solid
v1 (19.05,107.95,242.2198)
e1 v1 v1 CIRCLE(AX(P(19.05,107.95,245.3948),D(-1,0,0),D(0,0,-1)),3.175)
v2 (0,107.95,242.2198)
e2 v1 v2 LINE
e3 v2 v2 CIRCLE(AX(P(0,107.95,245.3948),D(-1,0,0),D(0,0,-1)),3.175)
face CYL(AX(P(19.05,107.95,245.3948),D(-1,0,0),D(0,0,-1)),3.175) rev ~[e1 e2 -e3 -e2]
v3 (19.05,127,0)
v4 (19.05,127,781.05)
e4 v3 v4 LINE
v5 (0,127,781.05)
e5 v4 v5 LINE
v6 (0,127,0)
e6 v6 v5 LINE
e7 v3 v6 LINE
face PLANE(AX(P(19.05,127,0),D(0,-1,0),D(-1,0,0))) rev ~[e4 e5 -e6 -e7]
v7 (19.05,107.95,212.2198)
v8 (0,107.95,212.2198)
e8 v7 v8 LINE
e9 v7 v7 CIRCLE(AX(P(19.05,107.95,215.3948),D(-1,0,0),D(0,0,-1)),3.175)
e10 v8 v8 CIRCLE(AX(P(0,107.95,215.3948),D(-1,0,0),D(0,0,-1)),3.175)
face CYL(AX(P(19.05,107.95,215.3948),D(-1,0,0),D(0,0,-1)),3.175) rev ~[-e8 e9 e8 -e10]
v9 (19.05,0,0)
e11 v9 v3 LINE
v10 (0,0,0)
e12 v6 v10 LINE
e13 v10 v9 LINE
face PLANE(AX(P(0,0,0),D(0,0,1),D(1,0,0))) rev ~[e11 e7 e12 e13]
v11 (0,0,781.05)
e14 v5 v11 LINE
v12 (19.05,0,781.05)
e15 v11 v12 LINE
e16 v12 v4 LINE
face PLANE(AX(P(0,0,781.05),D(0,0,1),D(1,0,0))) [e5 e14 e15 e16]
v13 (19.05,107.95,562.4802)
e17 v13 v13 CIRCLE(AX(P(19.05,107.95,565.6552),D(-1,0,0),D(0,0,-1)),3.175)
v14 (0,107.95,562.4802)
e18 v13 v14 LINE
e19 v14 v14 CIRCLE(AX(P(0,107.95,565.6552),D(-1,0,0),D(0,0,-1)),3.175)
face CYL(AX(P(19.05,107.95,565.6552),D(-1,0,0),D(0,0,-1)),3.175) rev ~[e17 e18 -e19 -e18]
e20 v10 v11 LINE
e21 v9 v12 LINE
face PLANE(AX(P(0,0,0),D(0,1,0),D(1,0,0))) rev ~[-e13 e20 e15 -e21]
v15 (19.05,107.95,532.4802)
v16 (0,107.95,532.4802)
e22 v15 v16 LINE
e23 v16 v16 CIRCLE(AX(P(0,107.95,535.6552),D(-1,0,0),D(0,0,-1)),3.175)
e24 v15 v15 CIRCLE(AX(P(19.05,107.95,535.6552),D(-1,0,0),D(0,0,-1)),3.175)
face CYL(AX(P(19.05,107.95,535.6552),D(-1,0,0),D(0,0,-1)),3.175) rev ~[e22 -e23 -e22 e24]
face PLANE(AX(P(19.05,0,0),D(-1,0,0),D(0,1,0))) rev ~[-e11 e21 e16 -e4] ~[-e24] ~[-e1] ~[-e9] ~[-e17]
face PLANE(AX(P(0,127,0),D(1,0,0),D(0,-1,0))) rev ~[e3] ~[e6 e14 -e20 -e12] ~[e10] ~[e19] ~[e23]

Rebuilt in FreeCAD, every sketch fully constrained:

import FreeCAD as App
import Part
import Sketcher
Q = App.Units.Quantity


def add_polygon(sketch, points):
    """Adds a closed chain of lines whose ends are joined by coincident constraints."""
    first, n = sketch.GeometryCount, len(points)
    for a, b in zip(points, points[1:] + points[:1]):
        sketch.addGeometry(Part.LineSegment(App.Vector(*a, 0), App.Vector(*b, 0)), False)
    for i in range(n):
        sketch.addConstraint(Sketcher.Constraint("Coincident", first + i, 2, first + (i + 1) % n, 1))

doc = App.newDocument("Part")
body = doc.addObject("PartDesign::Body", "Body")

sketch1 = doc.addObject("Sketcher::SketchObject", "Sketch")
body.addObject(sketch1)
sketch1.AttachmentSupport = (doc.XY_Plane, [""])
sketch1.MapMode = "FlatFace"
add_polygon(sketch1, [(0, 127), (0, 0), (19, 0), (19, 127)])
sketch1.addConstraint(Sketcher.Constraint("Vertical", 0))
sketch1.addConstraint(Sketcher.Constraint("Horizontal", 1))
sketch1.addConstraint(Sketcher.Constraint("Vertical", 2))
sketch1.addConstraint(Sketcher.Constraint("Horizontal", 3))
sketch1.addConstraint(Sketcher.Constraint("Coincident", 0, 2, -1, 1))
sketch1.addConstraint(Sketcher.Constraint("DistanceY", 0, 2, 0, 1, Q("5 in")))
sketch1.addConstraint(Sketcher.Constraint("DistanceX", 1, 1, 1, 2, Q("0.75 in")))
pad1 = doc.addObject("PartDesign::Pad", "Pad")
body.addObject(pad1)
pad1.Profile = sketch1
pad1.Length = Q("30.75 in")

sketch2 = doc.addObject("Sketcher::SketchObject", "Sketch001")
body.addObject(sketch2)
sketch2.AttachmentSupport = (doc.YZ_Plane, [""])
sketch2.MapMode = "FlatFace"
sketch2.AttachmentOffset = App.Placement(App.Vector(0, 0, 0.75 * 25.4), App.Rotation())
sketch2.addGeometry(Part.Circle(App.Vector(108, 565.7, 0), App.Vector(0, 0, 1), 3.2), False)
sketch2.addGeometry(Part.Circle(App.Vector(108, 535.7, 0), App.Vector(0, 0, 1), 3.2), False)
sketch2.addGeometry(Part.Circle(App.Vector(108, 215.4, 0), App.Vector(0, 0, 1), 3.2), False)
sketch2.addGeometry(Part.Circle(App.Vector(108, 245.4, 0), App.Vector(0, 0, 1), 3.2), False)
sketch2.addConstraint(Sketcher.Constraint("Equal", 0, 1))
sketch2.addConstraint(Sketcher.Constraint("Equal", 1, 2))
sketch2.addConstraint(Sketcher.Constraint("Equal", 2, 3))
sketch2.addConstraint(Sketcher.Constraint("Vertical", 0, 3, 1, 3))
sketch2.addConstraint(Sketcher.Constraint("Vertical", 1, 3, 2, 3))
sketch2.addConstraint(Sketcher.Constraint("Vertical", 2, 3, 3, 3))
sketch2.addConstraint(Sketcher.Constraint("Diameter", 0, Q("0.25 in")))
sketch2.addConstraint(Sketcher.Constraint("DistanceX", -1, 1, 0, 3, Q("4.25 in")))
sketch2.addConstraint(Sketcher.Constraint("DistanceY", -1, 1, 0, 3, Q("22.2699 in")))
sketch2.addConstraint(Sketcher.Constraint("DistanceY", -1, 1, 2, 3, Q("8.4801 in")))
sketch2.addConstraint(Sketcher.Constraint("DistanceY", 1, 3, 0, 3, Q("1.1811 in")))
sketch2.addConstraint(Sketcher.Constraint("DistanceY", 2, 3, 3, 3, Q("1.1811 in")))
doc.recompute()
hole = doc.addObject("PartDesign::Hole", "Hole")
body.addObject(hole)
hole.Profile = sketch2
hole.ThreadType = "None"
hole.Diameter = Q("0.25 in")
hole.DepthType = "ThroughAll"

doc.recompute()
